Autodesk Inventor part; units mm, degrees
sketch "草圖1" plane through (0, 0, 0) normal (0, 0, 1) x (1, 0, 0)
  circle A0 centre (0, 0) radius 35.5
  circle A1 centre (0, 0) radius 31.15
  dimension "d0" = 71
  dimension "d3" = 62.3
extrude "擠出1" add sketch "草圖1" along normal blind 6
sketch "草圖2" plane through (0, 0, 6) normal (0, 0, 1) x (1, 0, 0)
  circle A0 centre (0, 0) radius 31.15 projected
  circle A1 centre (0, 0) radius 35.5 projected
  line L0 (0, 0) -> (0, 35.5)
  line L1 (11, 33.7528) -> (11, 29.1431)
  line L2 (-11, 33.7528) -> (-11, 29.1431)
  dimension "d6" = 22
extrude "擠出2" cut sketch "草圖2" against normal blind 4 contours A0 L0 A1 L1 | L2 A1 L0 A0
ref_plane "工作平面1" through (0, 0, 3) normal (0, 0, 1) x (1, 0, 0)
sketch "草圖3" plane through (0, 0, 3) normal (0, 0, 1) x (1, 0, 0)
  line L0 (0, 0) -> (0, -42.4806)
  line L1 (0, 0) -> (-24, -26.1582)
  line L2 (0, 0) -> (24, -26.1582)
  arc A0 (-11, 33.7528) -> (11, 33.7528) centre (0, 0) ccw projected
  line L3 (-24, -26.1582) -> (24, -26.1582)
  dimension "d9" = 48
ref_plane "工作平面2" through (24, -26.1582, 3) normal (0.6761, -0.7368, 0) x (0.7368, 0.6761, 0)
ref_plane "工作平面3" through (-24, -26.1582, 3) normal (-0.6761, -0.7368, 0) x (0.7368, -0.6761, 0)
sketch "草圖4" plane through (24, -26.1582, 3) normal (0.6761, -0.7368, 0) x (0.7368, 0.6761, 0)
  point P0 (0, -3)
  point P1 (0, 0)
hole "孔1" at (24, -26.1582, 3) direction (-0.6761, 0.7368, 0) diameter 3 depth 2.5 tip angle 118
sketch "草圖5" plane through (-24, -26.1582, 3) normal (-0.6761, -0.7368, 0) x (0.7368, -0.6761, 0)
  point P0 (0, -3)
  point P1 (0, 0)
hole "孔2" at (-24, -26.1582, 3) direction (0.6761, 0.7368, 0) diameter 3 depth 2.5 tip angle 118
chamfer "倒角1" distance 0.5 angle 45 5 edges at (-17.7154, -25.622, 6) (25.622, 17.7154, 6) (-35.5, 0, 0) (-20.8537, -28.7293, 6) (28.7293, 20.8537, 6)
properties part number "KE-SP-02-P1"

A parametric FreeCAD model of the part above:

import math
import FreeCAD as App
import Part
import Sketcher

V = App.Vector
Q = App.Units.Quantity


def edges_at(feature, points):
    """Names of the edges that pass closest to the given points."""
    edges = feature.Shape.Edges
    near = lambda p: min(range(len(edges)), key=lambda i: edges[i].distToShape(Part.Vertex(*p))[0])
    return sorted({f"Edge{near(p) + 1}" for p in points})

doc = App.newDocument("Part")
body = doc.addObject("PartDesign::Body", "Body")

# Sketch on XY plane
sketch1 = body.newObject("Sketcher::SketchObject", "Sketch")
sketch1.AttachmentSupport = (doc.getObject("XY_Plane"), [""])
sketch1.MapMode = "FlatFace"
sketch1.addGeometry([
    Part.Circle(V(0, 0, 0), V(0, 0, 1), 35.5),
    Part.Circle(V(0, 0, 0), V(0, 0, 1), 31.15),
], False)
sketch1.addConstraint([
    Sketcher.Constraint("Coincident", 0, 3, -1, 1),
    Sketcher.Constraint("Coincident", 1, 3, -1, 1),
    Sketcher.Constraint("Diameter", 0, Q("71 mm")),
    Sketcher.Constraint("Diameter", 1, Q("62.3 mm")),
])
pad1 = body.newObject("PartDesign::Pad", "Pad")
pad1.Profile = sketch1
pad1.Length = 6

# Sketch on XY plane
sketch2 = body.newObject("Sketcher::SketchObject", "Sketch001")
sketch2.AttachmentSupport = (doc.getObject("XY_Plane"), [""])
sketch2.MapMode = "FlatFace"
sketch2.AttachmentOffset = App.Placement(V(0, 0, 6), App.Rotation())
sketch2.addGeometry([
    Part.LineSegment(V(11, 29.1431, 0), V(11, 33.7528, 0)),
    Part.ArcOfCircle(Part.Circle(V(0, 0, 0), V(0, 0, 1), 35.5), math.radians(71.949268), math.radians(108.050732)),
    Part.LineSegment(V(-11, 33.7528, 0), V(-11, 29.1431, 0)),
    Part.ArcOfCircle(Part.Circle(V(0, 0, 0), V(0, 0, 1), 31.15), math.radians(69.321094), math.radians(110.678906)),
], False)
sketch2.addConstraint([
    Sketcher.Constraint("Coincident", 0, 2, 1, 1),
    Sketcher.Constraint("Coincident", 1, 2, 2, 1),
    Sketcher.Constraint("Coincident", 2, 2, 3, 2),
    Sketcher.Constraint("Coincident", 3, 1, 0, 1),
    Sketcher.Constraint("Vertical", 0),
    Sketcher.Constraint("Vertical", 2),
    Sketcher.Constraint("Coincident", 1, 3, -1, 1),
    Sketcher.Constraint("Coincident", 3, 3, -1, 1),
    Sketcher.Constraint("Horizontal", 0, 2, 1, 2),
    Sketcher.Constraint("DistanceX", 1, 2, 0, 2, Q("22 mm")),
    Sketcher.Constraint("Radius", 1, Q("35.5 mm")),
    Sketcher.Constraint("Radius", 3, Q("31.15 mm")),
])
pocket1 = body.newObject("PartDesign::Pocket", "Pocket")
pocket1.Profile = sketch2
pocket1.Length = 4

# Sketch on an angled plane
sketch3 = body.newObject("Sketcher::SketchObject", "Sketch002")
sketch3.Placement = App.Placement(V(24.001738, -26.156605, 0), App.Rotation(V(0.73680536, 0.676104919, 0), V(0, 0, 1), V(0.676104919, -0.73680536, 0), "ZXY"))
sketch3.addGeometry(Part.Circle(V(-0.002359, 3, 0), V(0, 0, 1), 1.5), False)
sketch3.addConstraint([
    Sketcher.Constraint("Diameter", 0, Q("3 mm")),
    Sketcher.Constraint("DistanceY", -1, 1, 0, 3, Q("3 mm")),
    Sketcher.Constraint("DistanceX", 0, 3, -1, 1, Q("0.0024 mm")),
])
doc.recompute()
hole = body.newObject("PartDesign::Hole", "Hole")
hole.Profile = sketch3
hole.ThreadType = "None"
hole.Diameter = 3
hole.DepthType = "Dimension"
hole.Depth = 2.5
hole.DrillPoint = "Angled"
hole.DrillPointAngle = 118

# Sketch on an angled plane
sketch4 = body.newObject("Sketcher::SketchObject", "Sketch003")
sketch4.Placement = App.Placement(V(-24.001738, -26.156605, 0), App.Rotation(V(0.73680536, -0.676104919, 0), V(0, 0, 1), V(-0.676104919, -0.73680536, 0), "ZXY"))
sketch4.addGeometry(Part.Circle(V(0.002359, 3, 0), V(0, 0, 1), 1.5), False)
sketch4.addConstraint([
    Sketcher.Constraint("Diameter", 0, Q("3 mm")),
    Sketcher.Constraint("DistanceY", -1, 1, 0, 3, Q("3 mm")),
    Sketcher.Constraint("DistanceX", -1, 1, 0, 3, Q("0.0024 mm")),
])
doc.recompute()
hole2 = body.newObject("PartDesign::Hole", "Hole001")
hole2.Profile = sketch4
hole2.ThreadType = "None"
hole2.Diameter = 3
hole2.DepthType = "Dimension"
hole2.Depth = 2.5
hole2.DrillPoint = "Angled"
hole2.DrillPointAngle = 118
doc.recompute()

chamfer = body.newObject("PartDesign::Chamfer", "Chamfer")
chamfer.Base = (hole2, edges_at(hole2, [
    (-17.715, -25.622, 6),
    (25.622, 17.715, 6),
    (-35.5, 0, 0),
    (-20.854, -28.729, 6),
    (28.729, 20.854, 6),
]))
chamfer.Size = 0.5

doc.recompute()
